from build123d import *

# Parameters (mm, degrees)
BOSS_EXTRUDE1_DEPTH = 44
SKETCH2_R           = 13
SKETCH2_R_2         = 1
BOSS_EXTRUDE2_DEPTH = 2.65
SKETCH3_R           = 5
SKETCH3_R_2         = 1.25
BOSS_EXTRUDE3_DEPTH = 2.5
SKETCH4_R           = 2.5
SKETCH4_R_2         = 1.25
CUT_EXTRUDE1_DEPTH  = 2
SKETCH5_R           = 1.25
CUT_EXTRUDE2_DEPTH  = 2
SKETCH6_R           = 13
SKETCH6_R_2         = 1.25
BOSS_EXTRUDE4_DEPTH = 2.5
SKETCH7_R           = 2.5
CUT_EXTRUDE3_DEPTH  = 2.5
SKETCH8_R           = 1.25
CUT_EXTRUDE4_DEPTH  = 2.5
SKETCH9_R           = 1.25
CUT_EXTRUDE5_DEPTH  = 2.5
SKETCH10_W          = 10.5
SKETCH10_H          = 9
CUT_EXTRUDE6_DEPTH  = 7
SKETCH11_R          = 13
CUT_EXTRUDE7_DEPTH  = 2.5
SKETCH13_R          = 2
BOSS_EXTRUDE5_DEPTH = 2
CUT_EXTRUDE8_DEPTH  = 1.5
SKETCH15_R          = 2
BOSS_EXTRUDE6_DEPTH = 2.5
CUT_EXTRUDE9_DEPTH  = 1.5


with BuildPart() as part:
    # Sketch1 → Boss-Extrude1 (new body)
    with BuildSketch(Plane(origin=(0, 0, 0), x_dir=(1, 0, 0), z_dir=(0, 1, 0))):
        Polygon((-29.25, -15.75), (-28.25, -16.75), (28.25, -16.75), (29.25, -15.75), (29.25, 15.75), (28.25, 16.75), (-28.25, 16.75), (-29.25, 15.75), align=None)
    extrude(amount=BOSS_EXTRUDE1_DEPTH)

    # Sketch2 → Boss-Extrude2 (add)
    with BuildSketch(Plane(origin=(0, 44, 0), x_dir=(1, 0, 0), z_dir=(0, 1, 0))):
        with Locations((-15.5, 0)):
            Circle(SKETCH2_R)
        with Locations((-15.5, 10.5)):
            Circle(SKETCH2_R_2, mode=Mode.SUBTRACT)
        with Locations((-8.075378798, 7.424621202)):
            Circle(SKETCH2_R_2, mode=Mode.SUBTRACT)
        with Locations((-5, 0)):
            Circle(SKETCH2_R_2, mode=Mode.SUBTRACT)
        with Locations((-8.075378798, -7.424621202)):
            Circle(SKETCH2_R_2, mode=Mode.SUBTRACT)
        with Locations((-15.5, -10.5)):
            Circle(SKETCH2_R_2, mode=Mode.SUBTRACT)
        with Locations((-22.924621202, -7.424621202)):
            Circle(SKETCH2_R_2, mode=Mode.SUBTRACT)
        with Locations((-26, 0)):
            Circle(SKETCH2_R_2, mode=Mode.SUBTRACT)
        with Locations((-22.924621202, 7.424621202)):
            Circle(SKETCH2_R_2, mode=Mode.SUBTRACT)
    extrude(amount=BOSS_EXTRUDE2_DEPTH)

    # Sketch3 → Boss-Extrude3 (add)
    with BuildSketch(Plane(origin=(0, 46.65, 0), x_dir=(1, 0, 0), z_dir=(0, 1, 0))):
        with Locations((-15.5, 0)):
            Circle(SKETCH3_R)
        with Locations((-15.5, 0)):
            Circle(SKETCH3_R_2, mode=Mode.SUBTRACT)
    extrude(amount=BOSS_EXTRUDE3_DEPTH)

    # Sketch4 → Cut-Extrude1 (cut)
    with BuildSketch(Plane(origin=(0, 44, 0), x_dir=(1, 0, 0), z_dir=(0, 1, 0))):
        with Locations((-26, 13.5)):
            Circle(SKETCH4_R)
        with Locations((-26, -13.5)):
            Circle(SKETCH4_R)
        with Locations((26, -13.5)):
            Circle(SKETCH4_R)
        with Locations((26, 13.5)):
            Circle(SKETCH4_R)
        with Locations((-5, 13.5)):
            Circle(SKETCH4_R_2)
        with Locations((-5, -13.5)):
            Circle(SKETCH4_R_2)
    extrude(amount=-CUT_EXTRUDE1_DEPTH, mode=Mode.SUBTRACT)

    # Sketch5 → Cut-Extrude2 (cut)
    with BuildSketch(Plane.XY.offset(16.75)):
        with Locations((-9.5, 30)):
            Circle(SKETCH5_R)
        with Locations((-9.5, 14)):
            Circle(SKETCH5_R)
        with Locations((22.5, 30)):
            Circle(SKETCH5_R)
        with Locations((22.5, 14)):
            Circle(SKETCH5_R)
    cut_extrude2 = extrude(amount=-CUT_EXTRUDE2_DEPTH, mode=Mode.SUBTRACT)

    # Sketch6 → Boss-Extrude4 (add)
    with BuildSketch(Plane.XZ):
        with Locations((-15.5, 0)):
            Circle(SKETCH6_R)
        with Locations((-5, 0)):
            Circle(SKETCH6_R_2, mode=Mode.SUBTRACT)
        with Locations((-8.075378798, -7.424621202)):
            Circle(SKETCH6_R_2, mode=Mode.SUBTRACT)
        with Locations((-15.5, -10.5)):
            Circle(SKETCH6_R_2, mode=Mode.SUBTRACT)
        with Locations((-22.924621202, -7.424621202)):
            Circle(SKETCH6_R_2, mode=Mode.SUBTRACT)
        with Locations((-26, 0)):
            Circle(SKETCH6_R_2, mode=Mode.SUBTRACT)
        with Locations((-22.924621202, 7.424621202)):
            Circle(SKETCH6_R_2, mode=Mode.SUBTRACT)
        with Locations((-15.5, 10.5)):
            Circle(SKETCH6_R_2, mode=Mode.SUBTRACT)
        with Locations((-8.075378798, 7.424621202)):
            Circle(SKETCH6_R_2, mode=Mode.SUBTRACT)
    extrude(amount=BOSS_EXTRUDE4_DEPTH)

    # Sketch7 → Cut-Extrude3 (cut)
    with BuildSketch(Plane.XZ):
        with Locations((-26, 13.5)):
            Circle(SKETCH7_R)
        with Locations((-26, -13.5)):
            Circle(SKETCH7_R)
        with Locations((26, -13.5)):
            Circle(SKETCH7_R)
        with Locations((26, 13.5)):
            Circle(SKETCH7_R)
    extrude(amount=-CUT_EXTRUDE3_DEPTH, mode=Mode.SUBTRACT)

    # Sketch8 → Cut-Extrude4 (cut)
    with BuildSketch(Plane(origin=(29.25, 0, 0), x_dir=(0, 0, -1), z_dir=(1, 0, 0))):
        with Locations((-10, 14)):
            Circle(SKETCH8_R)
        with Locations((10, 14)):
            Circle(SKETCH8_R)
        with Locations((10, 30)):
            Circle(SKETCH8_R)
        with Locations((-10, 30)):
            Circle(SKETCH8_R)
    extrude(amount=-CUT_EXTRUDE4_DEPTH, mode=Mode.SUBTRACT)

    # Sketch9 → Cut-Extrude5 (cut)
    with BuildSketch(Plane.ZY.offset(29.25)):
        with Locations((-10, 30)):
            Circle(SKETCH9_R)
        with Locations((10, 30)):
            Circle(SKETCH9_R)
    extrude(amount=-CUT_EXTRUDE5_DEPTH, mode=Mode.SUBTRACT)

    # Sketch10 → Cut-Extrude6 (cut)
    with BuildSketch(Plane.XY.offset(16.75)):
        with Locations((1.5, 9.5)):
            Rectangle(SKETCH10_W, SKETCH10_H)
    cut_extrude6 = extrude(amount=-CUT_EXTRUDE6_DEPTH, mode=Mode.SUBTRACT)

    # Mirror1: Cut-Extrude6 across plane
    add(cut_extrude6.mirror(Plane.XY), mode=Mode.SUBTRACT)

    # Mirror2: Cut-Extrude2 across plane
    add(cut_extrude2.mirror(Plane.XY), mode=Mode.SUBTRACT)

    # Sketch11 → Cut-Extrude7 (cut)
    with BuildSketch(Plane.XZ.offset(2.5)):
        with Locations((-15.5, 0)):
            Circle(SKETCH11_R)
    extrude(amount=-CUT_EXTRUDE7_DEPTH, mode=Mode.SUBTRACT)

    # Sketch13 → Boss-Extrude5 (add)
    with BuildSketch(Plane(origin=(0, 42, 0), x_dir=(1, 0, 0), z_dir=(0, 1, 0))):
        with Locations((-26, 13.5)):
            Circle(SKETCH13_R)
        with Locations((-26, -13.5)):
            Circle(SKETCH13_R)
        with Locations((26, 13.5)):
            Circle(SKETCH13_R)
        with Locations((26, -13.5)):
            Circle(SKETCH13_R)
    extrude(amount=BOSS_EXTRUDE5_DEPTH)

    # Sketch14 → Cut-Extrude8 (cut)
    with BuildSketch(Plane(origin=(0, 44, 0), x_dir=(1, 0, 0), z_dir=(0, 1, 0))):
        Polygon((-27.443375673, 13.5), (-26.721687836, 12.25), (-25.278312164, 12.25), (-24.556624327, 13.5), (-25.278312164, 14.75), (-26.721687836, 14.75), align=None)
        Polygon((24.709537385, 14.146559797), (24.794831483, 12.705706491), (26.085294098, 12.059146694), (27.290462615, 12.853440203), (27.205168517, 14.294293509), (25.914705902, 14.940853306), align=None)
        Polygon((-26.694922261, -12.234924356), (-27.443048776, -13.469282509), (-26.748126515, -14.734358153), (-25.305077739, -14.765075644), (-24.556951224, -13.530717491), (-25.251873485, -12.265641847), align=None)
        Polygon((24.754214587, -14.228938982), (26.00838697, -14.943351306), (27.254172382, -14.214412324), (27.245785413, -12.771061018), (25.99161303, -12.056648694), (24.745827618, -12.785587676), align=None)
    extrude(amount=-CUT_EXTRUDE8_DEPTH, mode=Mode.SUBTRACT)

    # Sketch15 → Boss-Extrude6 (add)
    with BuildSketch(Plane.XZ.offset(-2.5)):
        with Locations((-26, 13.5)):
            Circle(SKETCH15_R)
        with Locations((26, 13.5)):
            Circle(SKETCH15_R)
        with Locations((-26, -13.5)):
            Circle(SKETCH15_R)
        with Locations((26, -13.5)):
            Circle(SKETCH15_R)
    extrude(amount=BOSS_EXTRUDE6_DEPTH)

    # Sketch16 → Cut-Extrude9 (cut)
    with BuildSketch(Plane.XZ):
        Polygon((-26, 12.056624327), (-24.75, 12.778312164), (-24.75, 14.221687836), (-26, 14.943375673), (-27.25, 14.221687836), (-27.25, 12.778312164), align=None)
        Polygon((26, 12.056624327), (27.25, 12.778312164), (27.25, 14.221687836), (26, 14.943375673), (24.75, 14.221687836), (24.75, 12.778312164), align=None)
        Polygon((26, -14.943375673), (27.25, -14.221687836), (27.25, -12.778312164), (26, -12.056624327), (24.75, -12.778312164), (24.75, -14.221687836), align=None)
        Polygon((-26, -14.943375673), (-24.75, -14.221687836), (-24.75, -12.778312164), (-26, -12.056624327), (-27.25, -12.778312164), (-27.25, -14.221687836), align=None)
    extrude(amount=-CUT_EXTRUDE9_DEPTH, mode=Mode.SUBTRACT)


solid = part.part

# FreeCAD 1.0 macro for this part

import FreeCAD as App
import Part
import Sketcher

V = App.Vector
Q = App.Units.Quantity


def add_polygon(sketch, points):
    """Adds a closed chain of lines whose ends are joined by coincident constraints."""
    first, n = sketch.GeometryCount, len(points)
    for a, b in zip(points, points[1:] + points[:1]):
        sketch.addGeometry(Part.LineSegment(App.Vector(*a, 0), App.Vector(*b, 0)), False)
    for i in range(n):
        sketch.addConstraint(Sketcher.Constraint("Coincident", first + i, 2, first + (i + 1) % n, 1))

doc = App.newDocument("Part")
body = doc.addObject("PartDesign::Body", "Body")

sketch1 = body.newObject("Sketcher::SketchObject", "Sketch")
sketch1.AttachmentSupport = (doc.getObject("XZ_Plane"), [""])
sketch1.MapMode = "FlatFace"
add_polygon(sketch1, [(-29.2, 15.8), (-28.2, 16.8), (28.2, 16.8), (29.2, 15.8), (29.2, -15.8), (28.2, -16.8), (-28.2, -16.8), (-29.2, -15.8)])
sketch1.addConstraint(Sketcher.Constraint("Horizontal", 1))
sketch1.addConstraint(Sketcher.Constraint("Vertical", 3))
sketch1.addConstraint(Sketcher.Constraint("Horizontal", 5))
sketch1.addConstraint(Sketcher.Constraint("Vertical", 7))
sketch1.addConstraint(Sketcher.Constraint("Symmetric", 0, 2, 4, 2, -1, 1))
sketch1.addConstraint(Sketcher.Constraint("Symmetric", 2, 2, 6, 2, -1, 1))
sketch1.addConstraint(Sketcher.Constraint("Perpendicular", 0, 2))
sketch1.addConstraint(Sketcher.Constraint("Perpendicular", 2, 4))
sketch1.addConstraint(Sketcher.Constraint("Perpendicular", 4, 6))
sketch1.addConstraint(Sketcher.Constraint("Horizontal", 3, 2, 6, 2))
sketch1.addConstraint(Sketcher.Constraint("Vertical", 1, 2, 4, 2))
sketch1.addConstraint(Sketcher.Constraint("DistanceX", 1, 1, 1, 2, Q("56.5 mm")))
sketch1.addConstraint(Sketcher.Constraint("DistanceY", 3, 2, 3, 1, Q("31.5 mm")))
sketch1.addConstraint(Sketcher.Constraint("DistanceX", 1, 2, 2, 2, Q("1 mm")))
pad1 = body.newObject("PartDesign::Pad", "Pad")
pad1.Profile = sketch1
pad1.Length = 44
pad1.Reversed = True

sketch2 = body.newObject("Sketcher::SketchObject", "Sketch001")
sketch2.AttachmentSupport = (doc.getObject("XZ_Plane"), [""])
sketch2.MapMode = "FlatFace"
sketch2.AttachmentOffset = App.Placement(V(0, 0, -44), App.Rotation())
sketch2.addGeometry(Part.Circle(V(-15.5, 0, 0), V(0, 0, 1), 13), False)
sketch2.addGeometry(Part.Circle(V(-22.9, 7.4, 0), V(0, 0, 1), 1), False)
sketch2.addGeometry(Part.Circle(V(-15.5, 10.5, 0), V(0, 0, 1), 1), False)
sketch2.addGeometry(Part.Circle(V(-8.1, 7.4, 0), V(0, 0, 1), 1), False)
sketch2.addGeometry(Part.Circle(V(-26, 0, 0), V(0, 0, 1), 1), False)
sketch2.addGeometry(Part.Circle(V(-22.9, -7.4, 0), V(0, 0, 1), 1), False)
sketch2.addGeometry(Part.Circle(V(-5, 0, 0), V(0, 0, 1), 1), False)
sketch2.addGeometry(Part.Circle(V(-15.5, -10.5, 0), V(0, 0, 1), 1), False)
sketch2.addGeometry(Part.Circle(V(-8.1, -7.4, 0), V(0, 0, 1), 1), False)
sketch2.addConstraint(Sketcher.Constraint("Equal", 1, 2))
sketch2.addConstraint(Sketcher.Constraint("Equal", 2, 3))
sketch2.addConstraint(Sketcher.Constraint("Equal", 3, 4))
sketch2.addConstraint(Sketcher.Constraint("Equal", 4, 5))
sketch2.addConstraint(Sketcher.Constraint("Equal", 5, 6))
sketch2.addConstraint(Sketcher.Constraint("Equal", 6, 7))
sketch2.addConstraint(Sketcher.Constraint("Equal", 7, 8))
sketch2.addConstraint(Sketcher.Constraint("Symmetric", 1, 3, 5, 3, -1))
sketch2.addConstraint(Sketcher.Constraint("Symmetric", 2, 3, 7, 3, -1))
sketch2.addConstraint(Sketcher.Constraint("Symmetric", 3, 3, 8, 3, -1))
sketch2.addConstraint(Sketcher.Constraint("PointOnObject", 0, 3, -1))
sketch2.addConstraint(Sketcher.Constraint("PointOnObject", 4, 3, -1))
sketch2.addConstraint(Sketcher.Constraint("PointOnObject", 6, 3, -1))
sketch2.addConstraint(Sketcher.Constraint("Horizontal", 1, 3, 3, 3))
sketch2.addConstraint(Sketcher.Constraint("Vertical", 0, 3, 2, 3))
sketch2.addConstraint(Sketcher.Constraint("Diameter", 0, Q("26 mm")))
sketch2.addConstraint(Sketcher.Constraint("Diameter", 1, Q("2 mm")))
sketch2.addConstraint(Sketcher.Constraint("DistanceX", 4, 3, -1, 1, Q("26 mm")))
sketch2.addConstraint(Sketcher.Constraint("DistanceX", 6, 3, -1, 1, Q("5 mm")))
sketch2.addConstraint(Sketcher.Constraint("DistanceX", 0, 3, -1, 1, Q("15.5 mm")))
sketch2.addConstraint(Sketcher.Constraint("DistanceY", -1, 1, 2, 3, Q("10.5 mm")))
sketch2.addConstraint(Sketcher.Constraint("DistanceX", 1, 3, -1, 1, Q("22.924621 mm")))
sketch2.addConstraint(Sketcher.Constraint("DistanceY", -1, 1, 1, 3, Q("7.424621 mm")))
sketch2.addConstraint(Sketcher.Constraint("DistanceX", 3, 3, -1, 1, Q("8.075379 mm")))
pad2 = body.newObject("PartDesign::Pad", "Pad001")
pad2.Profile = sketch2
pad2.Length = 2.65
pad2.Reversed = True

sketch3 = body.newObject("Sketcher::SketchObject", "Sketch002")
sketch3.AttachmentSupport = (doc.getObject("XZ_Plane"), [""])
sketch3.MapMode = "FlatFace"
sketch3.AttachmentOffset = App.Placement(V(0, 0, -46.65), App.Rotation())
sketch3.addGeometry(Part.Circle(V(-15.5, 0, 0), V(0, 0, 1), 5), False)
sketch3.addGeometry(Part.Circle(V(-15.5, 0, 0), V(0, 0, 1), 1.2), False)
sketch3.addConstraint(Sketcher.Constraint("Coincident", 1, 3, 0, 3))
sketch3.addConstraint(Sketcher.Constraint("PointOnObject", 0, 3, -1))
sketch3.addConstraint(Sketcher.Constraint("Diameter", 0, Q("10 mm")))
sketch3.addConstraint(Sketcher.Constraint("Diameter", 1, Q("2.5 mm")))
sketch3.addConstraint(Sketcher.Constraint("DistanceX", 0, 3, -1, 1, Q("15.5 mm")))
pad3 = body.newObject("PartDesign::Pad", "Pad002")
pad3.Profile = sketch3
pad3.Length = 2.5
pad3.Reversed = True

sketch4 = body.newObject("Sketcher::SketchObject", "Sketch003")
sketch4.AttachmentSupport = (doc.getObject("XZ_Plane"), [""])
sketch4.MapMode = "FlatFace"
sketch4.AttachmentOffset = App.Placement(V(0, 0, -44), App.Rotation())
sketch4.addGeometry(Part.Circle(V(-26, -13.5, 0), V(0, 0, 1), 2.5), False)
sketch4.addGeometry(Part.Circle(V(-26, 13.5, 0), V(0, 0, 1), 2.5), False)
sketch4.addGeometry(Part.Circle(V(26, 13.5, 0), V(0, 0, 1), 2.5), False)
sketch4.addGeometry(Part.Circle(V(26, -13.5, 0), V(0, 0, 1), 2.5), False)
sketch4.addGeometry(Part.Circle(V(-5, -13.5, 0), V(0, 0, 1), 1.2), False)
sketch4.addGeometry(Part.Circle(V(-5, 13.5, 0), V(0, 0, 1), 1.2), False)
sketch4.addConstraint(Sketcher.Constraint("Equal", 0, 1))
sketch4.addConstraint(Sketcher.Constraint("Equal", 1, 2))
sketch4.addConstraint(Sketcher.Constraint("Equal", 2, 3))
sketch4.addConstraint(Sketcher.Constraint("Equal", 4, 5))
sketch4.addConstraint(Sketcher.Constraint("Symmetric", 0, 3, 2, 3, -1, 1))
sketch4.addConstraint(Sketcher.Constraint("Symmetric", 1, 3, 3, 3, -1, 1))
sketch4.addConstraint(Sketcher.Constraint("Symmetric", 1, 3, 2, 3, -2))
sketch4.addConstraint(Sketcher.Constraint("Symmetric", 4, 3, 5, 3, -1))
sketch4.addConstraint(Sketcher.Constraint("Horizontal", 3, 3, 4, 3))
sketch4.addConstraint(Sketcher.Constraint("Diameter", 0, Q("5 mm")))
sketch4.addConstraint(Sketcher.Constraint("Diameter", 4, Q("2.5 mm")))
sketch4.addConstraint(Sketcher.Constraint("DistanceX", 0, 3, -1, 1, Q("26 mm")))
sketch4.addConstraint(Sketcher.Constraint("DistanceX", 4, 3, -1, 1, Q("5 mm")))
sketch4.addConstraint(Sketcher.Constraint("DistanceY", 0, 3, 1, 3, Q("27 mm")))
pocket1 = body.newObject("PartDesign::Pocket", "Pocket")
pocket1.Profile = sketch4
pocket1.Length = 2
pocket1.Reversed = True

sketch5 = body.newObject("Sketcher::SketchObject", "Sketch004")
sketch5.AttachmentSupport = (doc.getObject("XY_Plane"), [""])
sketch5.MapMode = "FlatFace"
sketch5.AttachmentOffset = App.Placement(V(0, 0, 16.75), App.Rotation())
sketch5.addGeometry(Part.Circle(V(-9.5, 30, 0), V(0, 0, 1), 1.2), False)
sketch5.addGeometry(Part.Circle(V(-9.5, 14, 0), V(0, 0, 1), 1.2), False)
sketch5.addGeometry(Part.Circle(V(22.5, 30, 0), V(0, 0, 1), 1.2), False)
sketch5.addGeometry(Part.Circle(V(22.5, 14, 0), V(0, 0, 1), 1.2), False)
sketch5.addConstraint(Sketcher.Constraint("Equal", 0, 1))
sketch5.addConstraint(Sketcher.Constraint("Equal", 1, 2))
sketch5.addConstraint(Sketcher.Constraint("Equal", 2, 3))
sketch5.addConstraint(Sketcher.Constraint("Horizontal", 0, 3, 2, 3))
sketch5.addConstraint(Sketcher.Constraint("Horizontal", 1, 3, 3, 3))
sketch5.addConstraint(Sketcher.Constraint("Vertical", 0, 3, 1, 3))
sketch5.addConstraint(Sketcher.Constraint("Vertical", 2, 3, 3, 3))
sketch5.addConstraint(Sketcher.Constraint("Diameter", 0, Q("2.5 mm")))
sketch5.addConstraint(Sketcher.Constraint("DistanceY", -1, 1, 0, 3, Q("30 mm")))
sketch5.addConstraint(Sketcher.Constraint("DistanceY", -1, 1, 1, 3, Q("14 mm")))
sketch5.addConstraint(Sketcher.Constraint("DistanceX", 0, 3, 2, 3, Q("32 mm")))
sketch5.addConstraint(Sketcher.Constraint("DistanceX", 0, 3, -1, 1, Q("9.5 mm")))
pocket2 = body.newObject("PartDesign::Pocket", "Pocket001")
pocket2.Profile = sketch5
pocket2.Length = 2

sketch6 = body.newObject("Sketcher::SketchObject", "Sketch005")
sketch6.AttachmentSupport = (doc.getObject("XZ_Plane"), [""])
sketch6.MapMode = "FlatFace"
sketch6.addGeometry(Part.Circle(V(-15.5, 0, 0), V(0, 0, 1), 13), False)
sketch6.addGeometry(Part.Circle(V(-22.9, -7.4, 0), V(0, 0, 1), 1.2), False)
sketch6.addGeometry(Part.Circle(V(-15.5, -10.5, 0), V(0, 0, 1), 1.2), False)
sketch6.addGeometry(Part.Circle(V(-8.1, -7.4, 0), V(0, 0, 1), 1.2), False)
sketch6.addGeometry(Part.Circle(V(-26, 0, 0), V(0, 0, 1), 1.2), False)
sketch6.addGeometry(Part.Circle(V(-22.9, 7.4, 0), V(0, 0, 1), 1.2), False)
sketch6.addGeometry(Part.Circle(V(-5, 0, 0), V(0, 0, 1), 1.2), False)
sketch6.addGeometry(Part.Circle(V(-15.5, 10.5, 0), V(0, 0, 1), 1.2), False)
sketch6.addGeometry(Part.Circle(V(-8.1, 7.4, 0), V(0, 0, 1), 1.2), False)
sketch6.addConstraint(Sketcher.Constraint("Equal", 1, 2))
sketch6.addConstraint(Sketcher.Constraint("Equal", 2, 3))
sketch6.addConstraint(Sketcher.Constraint("Equal", 3, 4))
sketch6.addConstraint(Sketcher.Constraint("Equal", 4, 5))
sketch6.addConstraint(Sketcher.Constraint("Equal", 5, 6))
sketch6.addConstraint(Sketcher.Constraint("Equal", 6, 7))
sketch6.addConstraint(Sketcher.Constraint("Equal", 7, 8))
sketch6.addConstraint(Sketcher.Constraint("Symmetric", 1, 3, 5, 3, -1))
sketch6.addConstraint(Sketcher.Constraint("Symmetric", 2, 3, 7, 3, -1))
sketch6.addConstraint(Sketcher.Constraint("Symmetric", 3, 3, 8, 3, -1))
sketch6.addConstraint(Sketcher.Constraint("PointOnObject", 0, 3, -1))
sketch6.addConstraint(Sketcher.Constraint("PointOnObject", 4, 3, -1))
sketch6.addConstraint(Sketcher.Constraint("PointOnObject", 6, 3, -1))
sketch6.addConstraint(Sketcher.Constraint("Horizontal", 1, 3, 3, 3))
sketch6.addConstraint(Sketcher.Constraint("Vertical", 0, 3, 2, 3))
sketch6.addConstraint(Sketcher.Constraint("Diameter", 0, Q("26 mm")))
sketch6.addConstraint(Sketcher.Constraint("Diameter", 1, Q("2.5 mm")))
sketch6.addConstraint(Sketcher.Constraint("DistanceX", 4, 3, -1, 1, Q("26 mm")))
sketch6.addConstraint(Sketcher.Constraint("DistanceX", 6, 3, -1, 1, Q("5 mm")))
sketch6.addConstraint(Sketcher.Constraint("DistanceX", 0, 3, -1, 1, Q("15.5 mm")))
sketch6.addConstraint(Sketcher.Constraint("DistanceY", 2, 3, -1, 1, Q("10.5 mm")))
sketch6.addConstraint(Sketcher.Constraint("DistanceX", 1, 3, -1, 1, Q("22.924621 mm")))
sketch6.addConstraint(Sketcher.Constraint("DistanceY", 1, 3, -1, 1, Q("7.424621 mm")))
sketch6.addConstraint(Sketcher.Constraint("DistanceX", 3, 3, -1, 1, Q("8.075379 mm")))
pad4 = body.newObject("PartDesign::Pad", "Pad003")
pad4.Profile = sketch6
pad4.Length = 2.5

sketch7 = body.newObject("Sketcher::SketchObject", "Sketch006")
sketch7.AttachmentSupport = (doc.getObject("XZ_Plane"), [""])
sketch7.MapMode = "FlatFace"
sketch7.addGeometry(Part.Circle(V(-26, 13.5, 0), V(0, 0, 1), 2.5), False)
sketch7.addGeometry(Part.Circle(V(-26, -13.5, 0), V(0, 0, 1), 2.5), False)
sketch7.addGeometry(Part.Circle(V(26, -13.5, 0), V(0, 0, 1), 2.5), False)
sketch7.addGeometry(Part.Circle(V(26, 13.5, 0), V(0, 0, 1), 2.5), False)
sketch7.addConstraint(Sketcher.Constraint("Equal", 0, 1))
sketch7.addConstraint(Sketcher.Constraint("Equal", 1, 2))
sketch7.addConstraint(Sketcher.Constraint("Equal", 2, 3))
sketch7.addConstraint(Sketcher.Constraint("Symmetric", 0, 3, 2, 3, -1, 1))
sketch7.addConstraint(Sketcher.Constraint("Symmetric", 1, 3, 3, 3, -1, 1))
sketch7.addConstraint(Sketcher.Constraint("Symmetric", 1, 3, 2, 3, -2))
sketch7.addConstraint(Sketcher.Constraint("Diameter", 0, Q("5 mm")))
sketch7.addConstraint(Sketcher.Constraint("DistanceX", 0, 3, -1, 1, Q("26 mm")))
sketch7.addConstraint(Sketcher.Constraint("DistanceY", 1, 3, 0, 3, Q("27 mm")))
pocket3 = body.newObject("PartDesign::Pocket", "Pocket002")
pocket3.Profile = sketch7
pocket3.Length = 2.5

sketch8 = body.newObject("Sketcher::SketchObject", "Sketch007")
sketch8.AttachmentSupport = (doc.getObject("YZ_Plane"), [""])
sketch8.MapMode = "FlatFace"
sketch8.AttachmentOffset = App.Placement(V(0, 0, 29.25), App.Rotation())
sketch8.addGeometry(Part.Circle(V(14, 10, 0), V(0, 0, 1), 1.2), False)
sketch8.addGeometry(Part.Circle(V(14, -10, 0), V(0, 0, 1), 1.2), False)
sketch8.addGeometry(Part.Circle(V(30, -10, 0), V(0, 0, 1), 1.2), False)
sketch8.addGeometry(Part.Circle(V(30, 10, 0), V(0, 0, 1), 1.2), False)
sketch8.addConstraint(Sketcher.Constraint("Equal", 0, 1))
sketch8.addConstraint(Sketcher.Constraint("Equal", 1, 2))
sketch8.addConstraint(Sketcher.Constraint("Equal", 2, 3))
sketch8.addConstraint(Sketcher.Constraint("Symmetric", 0, 3, 1, 3, -1))
sketch8.addConstraint(Sketcher.Constraint("Symmetric", 2, 3, 3, 3, -1))
sketch8.addConstraint(Sketcher.Constraint("Horizontal", 1, 3, 2, 3))
sketch8.addConstraint(Sketcher.Constraint("Diameter", 0, Q("2.5 mm")))
sketch8.addConstraint(Sketcher.Constraint("DistanceX", -1, 1, 0, 3, Q("14 mm")))
sketch8.addConstraint(Sketcher.Constraint("DistanceY", -1, 1, 0, 3, Q("10 mm")))
sketch8.addConstraint(Sketcher.Constraint("DistanceX", -1, 1, 2, 3, Q("30 mm")))
pocket4 = body.newObject("PartDesign::Pocket", "Pocket003")
pocket4.Profile = sketch8
pocket4.Length = 2.5

sketch9 = body.newObject("Sketcher::SketchObject", "Sketch008")
sketch9.AttachmentSupport = (doc.getObject("YZ_Plane"), [""])
sketch9.MapMode = "FlatFace"
sketch9.AttachmentOffset = App.Placement(V(0, 0, -29.25), App.Rotation())
sketch9.addGeometry(Part.Circle(V(30, -10, 0), V(0, 0, 1), 1.2), False)
sketch9.addGeometry(Part.Circle(V(30, 10, 0), V(0, 0, 1), 1.2), False)
sketch9.addConstraint(Sketcher.Constraint("Equal", 0, 1))
sketch9.addConstraint(Sketcher.Constraint("Symmetric", 0, 3, 1, 3, -1))
sketch9.addConstraint(Sketcher.Constraint("Diameter", 0, Q("2.5 mm")))
sketch9.addConstraint(Sketcher.Constraint("DistanceX", -1, 1, 0, 3, Q("30 mm")))
sketch9.addConstraint(Sketcher.Constraint("DistanceY", 0, 3, -1, 1, Q("10 mm")))
pocket5 = body.newObject("PartDesign::Pocket", "Pocket004")
pocket5.Profile = sketch9
pocket5.Length = 2.5
pocket5.Reversed = True

sketch10 = body.newObject("Sketcher::SketchObject", "Sketch009")
sketch10.AttachmentSupport = (doc.getObject("XY_Plane"), [""])
sketch10.MapMode = "FlatFace"
sketch10.AttachmentOffset = App.Placement(V(0, 0, 16.75), App.Rotation())
add_polygon(sketch10, [(-4, 14), (-4, 5), (7, 5), (7, 14)])
sketch10.addConstraint(Sketcher.Constraint("Vertical", 0))
sketch10.addConstraint(Sketcher.Constraint("Horizontal", 1))
sketch10.addConstraint(Sketcher.Constraint("Vertical", 2))
sketch10.addConstraint(Sketcher.Constraint("Horizontal", 3))
sketch10.addConstraint(Sketcher.Constraint("DistanceY", 0, 2, 0, 1, Q("9 mm")))
sketch10.addConstraint(Sketcher.Constraint("DistanceX", 1, 1, 1, 2, Q("10.5 mm")))
sketch10.addConstraint(Sketcher.Constraint("DistanceY", -1, 1, 0, 2, Q("5 mm")))
sketch10.addConstraint(Sketcher.Constraint("DistanceX", 0, 2, -1, 1, Q("3.75 mm")))
pocket6 = body.newObject("PartDesign::Pocket", "Pocket005")
pocket6.Profile = sketch10
pocket6.Length = 7
doc.recompute()

mirrored = body.newObject("PartDesign::Mirrored", "Mirrored")
mirrored.Originals = [pocket6]
mirrored.MirrorPlane = (doc.getObject("XY_Plane"), [""])
body.Tip = mirrored
doc.recompute()

mirrored2 = body.newObject("PartDesign::Mirrored", "Mirrored001")
mirrored2.Originals = [pocket2]
mirrored2.MirrorPlane = (doc.getObject("XY_Plane"), [""])
body.Tip = mirrored2

sketch11 = body.newObject("Sketcher::SketchObject", "Sketch010")
sketch11.AttachmentSupport = (doc.getObject("XZ_Plane"), [""])
sketch11.MapMode = "FlatFace"
sketch11.AttachmentOffset = App.Placement(V(0, 0, 2.5), App.Rotation())
sketch11.addGeometry(Part.Circle(V(-16, 0, 0), V(0, 0, 1), 13), False)
sketch11.addConstraint(Sketcher.Constraint("PointOnObject", 0, 3, -1))
sketch11.addConstraint(Sketcher.Constraint("Diameter", 0, Q("26 mm")))
sketch11.addConstraint(Sketcher.Constraint("DistanceX", 0, 3, -1, 1, Q("15.5 mm")))
pocket7 = body.newObject("PartDesign::Pocket", "Pocket006")
pocket7.Profile = sketch11
pocket7.Length = 2.5

sketch12 = body.newObject("Sketcher::SketchObject", "Sketch011")
sketch12.AttachmentSupport = (doc.getObject("XZ_Plane"), [""])
sketch12.MapMode = "FlatFace"
sketch12.AttachmentOffset = App.Placement(V(0, 0, -42), App.Rotation())
sketch12.addGeometry(Part.Circle(V(-26, -13.5, 0), V(0, 0, 1), 2), False)
sketch12.addGeometry(Part.Circle(V(-26, 13.5, 0), V(0, 0, 1), 2), False)
sketch12.addGeometry(Part.Circle(V(26, -13.5, 0), V(0, 0, 1), 2), False)
sketch12.addGeometry(Part.Circle(V(26, 13.5, 0), V(0, 0, 1), 2), False)
sketch12.addConstraint(Sketcher.Constraint("Equal", 0, 1))
sketch12.addConstraint(Sketcher.Constraint("Equal", 1, 2))
sketch12.addConstraint(Sketcher.Constraint("Equal", 2, 3))
sketch12.addConstraint(Sketcher.Constraint("Symmetric", 1, 3, 2, 3, -1, 1))
sketch12.addConstraint(Sketcher.Constraint("Symmetric", 0, 3, 3, 3, -1, 1))
sketch12.addConstraint(Sketcher.Constraint("Symmetric", 0, 3, 2, 3, -2))
sketch12.addConstraint(Sketcher.Constraint("Diameter", 0, Q("4 mm")))
sketch12.addConstraint(Sketcher.Constraint("DistanceX", 0, 3, -1, 1, Q("26 mm")))
sketch12.addConstraint(Sketcher.Constraint("DistanceY", 0, 3, 1, 3, Q("27 mm")))
pad5 = body.newObject("PartDesign::Pad", "Pad004")
pad5.Profile = sketch12
pad5.Length = 2
pad5.Reversed = True

sketch13 = body.newObject("Sketcher::SketchObject", "Sketch012")
sketch13.AttachmentSupport = (doc.getObject("XZ_Plane"), [""])
sketch13.MapMode = "FlatFace"
sketch13.AttachmentOffset = App.Placement(V(0, 0, -44), App.Rotation())
add_polygon(sketch13, [(-27.4, -13.5), (-26.7, -12.2), (-25.3, -12.2), (-24.6, -13.5), (-25.3, -14.8), (-26.7, -14.8)])
add_polygon(sketch13, [(24.7, -14.1), (24.8, -12.7), (26.1, -12.1), (27.3, -12.9), (27.2, -14.3), (25.9, -14.9)])
add_polygon(sketch13, [(-26.7, 12.2), (-27.4, 13.5), (-26.7, 14.7), (-25.3, 14.8), (-24.6, 13.5), (-25.3, 12.3)])
add_polygon(sketch13, [(24.8, 14.2), (26, 14.9), (27.3, 14.2), (27.2, 12.8), (26, 12.1), (24.7, 12.8)])
sketch13.addConstraint(Sketcher.Constraint("Horizontal", 1))
sketch13.addConstraint(Sketcher.Constraint("Horizontal", 4))
sketch13.addConstraint(Sketcher.Constraint("Parallel", 0, 3))
sketch13.addConstraint(Sketcher.Constraint("Parallel", 2, 5))
sketch13.addConstraint(Sketcher.Constraint("Parallel", 6, 9))
sketch13.addConstraint(Sketcher.Constraint("Parallel", 7, 10))
sketch13.addConstraint(Sketcher.Constraint("Parallel", 8, 11))
sketch13.addConstraint(Sketcher.Constraint("Parallel", 12, 15))
sketch13.addConstraint(Sketcher.Constraint("Parallel", 13, 16))
sketch13.addConstraint(Sketcher.Constraint("Parallel", 14, 17))
sketch13.addConstraint(Sketcher.Constraint("Parallel", 18, 21))
sketch13.addConstraint(Sketcher.Constraint("Parallel", 19, 22))
sketch13.addConstraint(Sketcher.Constraint("Parallel", 20, 23))
sketch13.addConstraint(Sketcher.Constraint("Horizontal", 2, 2, 5, 2))
sketch13.addConstraint(Sketcher.Constraint("Vertical", 1, 2, 3, 2))
sketch13.addConstraint(Sketcher.Constraint("Vertical", 0, 2, 4, 2))
sketch13.addConstraint(Sketcher.Constraint("Equal", 5, 6))
sketch13.addConstraint(Sketcher.Constraint("Equal", 6, 7))
sketch13.addConstraint(Sketcher.Constraint("Equal", 7, 8))
sketch13.addConstraint(Sketcher.Constraint("Equal", 8, 9))
sketch13.addConstraint(Sketcher.Constraint("Equal", 11, 12))
sketch13.addConstraint(Sketcher.Constraint("Equal", 12, 13))
sketch13.addConstraint(Sketcher.Constraint("Equal", 13, 14))
sketch13.addConstraint(Sketcher.Constraint("Equal", 14, 15))
sketch13.addConstraint(Sketcher.Constraint("Equal", 17, 18))
sketch13.addConstraint(Sketcher.Constraint("Equal", 18, 19))
sketch13.addConstraint(Sketcher.Constraint("Equal", 19, 20))
sketch13.addConstraint(Sketcher.Constraint("Equal", 20, 21))
sketch13.addConstraint(Sketcher.Constraint("Angle", 0, Q("60 deg")))
sketch13.addConstraint(Sketcher.Constraint("DistanceY", 2, 2, -1, 1, Q("13.5 mm")))
sketch13.addConstraint(Sketcher.Constraint("DistanceY", 3, 2, 1, 2, Q("2.5 mm")))
sketch13.addConstraint(Sketcher.Constraint("DistanceY", 7, 2, 18, 2, Q("27.002498 mm")))
sketch13.addConstraint(Sketcher.Constraint("DistanceX", 18, 2, 20, 2, Q("1.237398 mm")))
sketch13.addConstraint(Sketcher.Constraint("DistanceY", 8, 2, 20, 2, Q("25.624501 mm")))
sketch13.addConstraint(Sketcher.Constraint("DistanceX", 1, 1, 1, 2, Q("1.443376 mm")))
sketch13.addConstraint(Sketcher.Constraint("DistanceX", -1, 1, 6, 2, Q("24.794831 mm")))
sketch13.addConstraint(Sketcher.Constraint("DistanceY", 8, 2, -1, 1, Q("12.85344 mm")))
sketch13.addConstraint(Sketcher.Constraint("DistanceX", -1, 1, 9, 2, Q("27.205169 mm")))
sketch13.addConstraint(Sketcher.Constraint("DistanceY", 11, 2, -1, 1, Q("14.14656 mm")))
sketch13.addConstraint(Sketcher.Constraint("DistanceX", 12, 2, -1, 1, Q("27.443049 mm")))
sketch13.addConstraint(Sketcher.Constraint("DistanceY", -1, 1, 13, 2, Q("14.734358 mm")))
sketch13.addConstraint(Sketcher.Constraint("DistanceX", 15, 2, -1, 1, Q("24.556951 mm")))
sketch13.addConstraint(Sketcher.Constraint("DistanceY", -1, 1, 16, 2, Q("12.265642 mm")))
sketch13.addConstraint(Sketcher.Constraint("DistanceY", -1, 1, 18, 2, Q("14.943351 mm")))
sketch13.addConstraint(Sketcher.Constraint("DistanceY", -1, 1, 21, 2, Q("12.056649 mm")))
sketch13.addConstraint(Sketcher.Constraint("DistanceX", 0, 2, 6, 2, Q("51.516519 mm")))
sketch13.addConstraint(Sketcher.Constraint("DistanceX", 13, 2, 0, 2, Q("0.026439 mm")))
sketch13.addConstraint(Sketcher.Constraint("DistanceX", 11, 2, 18, 2, Q("1.29885 mm")))
pocket8 = body.newObject("PartDesign::Pocket", "Pocket007")
pocket8.Profile = sketch13
pocket8.Length = 1.5
pocket8.Reversed = True

sketch14 = body.newObject("Sketcher::SketchObject", "Sketch013")
sketch14.AttachmentSupport = (doc.getObject("XZ_Plane"), [""])
sketch14.MapMode = "FlatFace"
sketch14.AttachmentOffset = App.Placement(V(0, 0, -2.5), App.Rotation())
sketch14.addGeometry(Part.Circle(V(-26, 13.5, 0), V(0, 0, 1), 2), False)
sketch14.addGeometry(Part.Circle(V(26, 13.5, 0), V(0, 0, 1), 2), False)
sketch14.addGeometry(Part.Circle(V(-26, -13.5, 0), V(0, 0, 1), 2), False)
sketch14.addGeometry(Part.Circle(V(26, -13.5, 0), V(0, 0, 1), 2), False)
sketch14.addConstraint(Sketcher.Constraint("Equal", 0, 1))
sketch14.addConstraint(Sketcher.Constraint("Equal", 1, 2))
sketch14.addConstraint(Sketcher.Constraint("Equal", 2, 3))
sketch14.addConstraint(Sketcher.Constraint("Symmetric", 1, 3, 2, 3, -1, 1))
sketch14.addConstraint(Sketcher.Constraint("Symmetric", 0, 3, 3, 3, -1, 1))
sketch14.addConstraint(Sketcher.Constraint("Symmetric", 0, 3, 1, 3, -2))
sketch14.addConstraint(Sketcher.Constraint("Diameter", 0, Q("4 mm")))
sketch14.addConstraint(Sketcher.Constraint("DistanceX", 0, 3, -1, 1, Q("26 mm")))
sketch14.addConstraint(Sketcher.Constraint("DistanceY", 2, 3, 0, 3, Q("27 mm")))
pad6 = body.newObject("PartDesign::Pad", "Pad005")
pad6.Profile = sketch14
pad6.Length = 2.5

sketch15 = body.newObject("Sketcher::SketchObject", "Sketch014")
sketch15.AttachmentSupport = (doc.getObject("XZ_Plane"), [""])
sketch15.MapMode = "FlatFace"
add_polygon(sketch15, [(-26, 12.1), (-24.8, 12.8), (-24.8, 14.2), (-26, 14.9), (-27.2, 14.2), (-27.2, 12.8)])
add_polygon(sketch15, [(26, 12.1), (27.2, 12.8), (27.2, 14.2), (26, 14.9), (24.8, 14.2), (24.8, 12.8)])
add_polygon(sketch15, [(26, -14.9), (27.2, -14.2), (27.2, -12.8), (26, -12.1), (24.8, -12.8), (24.8, -14.2)])
add_polygon(sketch15, [(-26, -14.9), (-24.8, -14.2), (-24.8, -12.8), (-26, -12.1), (-27.2, -12.8), (-27.2, -14.2)])
sketch15.addConstraint(Sketcher.Constraint("Vertical", 1))
sketch15.addConstraint(Sketcher.Constraint("Vertical", 4))
sketch15.addConstraint(Sketcher.Constraint("Vertical", 7))
sketch15.addConstraint(Sketcher.Constraint("Vertical", 10))
sketch15.addConstraint(Sketcher.Constraint("Vertical", 13))
sketch15.addConstraint(Sketcher.Constraint("Vertical", 16))
sketch15.addConstraint(Sketcher.Constraint("Vertical", 19))
sketch15.addConstraint(Sketcher.Constraint("Vertical", 22))
sketch15.addConstraint(Sketcher.Constraint("Symmetric", 3, 2, 12, 2, -1, 1))
sketch15.addConstraint(Sketcher.Constraint("Symmetric", 5, 2, 14, 2, -1, 1))
sketch15.addConstraint(Sketcher.Constraint("Symmetric", 0, 2, 15, 2, -1, 1))
sketch15.addConstraint(Sketcher.Constraint("Symmetric", 2, 2, 17, 2, -1, 1))
sketch15.addConstraint(Sketcher.Constraint("Symmetric", 9, 2, 18, 2, -1, 1))
sketch15.addConstraint(Sketcher.Constraint("Symmetric", 11, 2, 20, 2, -1, 1))
sketch15.addConstraint(Sketcher.Constraint("Symmetric", 6, 2, 21, 2, -1, 1))
sketch15.addConstraint(Sketcher.Constraint("Symmetric", 8, 2, 23, 2, -1, 1))
sketch15.addConstraint(Sketcher.Constraint("Symmetric", 4, 2, 6, 2, -2))
sketch15.addConstraint(Sketcher.Constraint("Symmetric", 2, 2, 8, 2, -2))
sketch15.addConstraint(Sketcher.Constraint("Symmetric", 1, 2, 9, 2, -2))
sketch15.addConstraint(Sketcher.Constraint("Symmetric", 5, 2, 11, 2, -2))
sketch15.addConstraint(Sketcher.Constraint("Parallel", 0, 3))
sketch15.addConstraint(Sketcher.Constraint("Parallel", 2, 5))
sketch15.addConstraint(Sketcher.Constraint("Parallel", 3, 6))
sketch15.addConstraint(Sketcher.Constraint("Parallel", 5, 8))
sketch15.addConstraint(Sketcher.Constraint("Parallel", 8, 11))
sketch15.addConstraint(Sketcher.Constraint("Parallel", 11, 14))
sketch15.addConstraint(Sketcher.Constraint("Parallel", 14, 17))
sketch15.addConstraint(Sketcher.Constraint("Parallel", 17, 20))
sketch15.addConstraint(Sketcher.Constraint("Parallel", 20, 23))
sketch15.addConstraint(Sketcher.Constraint("Horizontal", 1, 2, 3, 2))
sketch15.addConstraint(Sketcher.Constraint("Horizontal", 0, 2, 4, 2))
sketch15.addConstraint(Sketcher.Constraint("Angle", 0, Q("30 deg")))
sketch15.addConstraint(Sketcher.Constraint("DistanceX", 2, 2, -1, 1, Q("26 mm")))
sketch15.addConstraint(Sketcher.Constraint("DistanceY", 12, 2, 6, 2, Q("27 mm")))
sketch15.addConstraint(Sketcher.Constraint("DistanceX", 3, 2, 1, 2, Q("2.5 mm")))
sketch15.addConstraint(Sketcher.Constraint("DistanceY", 1, 1, 1, 2, Q("1.443376 mm")))
pocket9 = body.newObject("PartDesign::Pocket", "Pocket008")
pocket9.Profile = sketch15
pocket9.Length = 1.5

doc.recompute()
